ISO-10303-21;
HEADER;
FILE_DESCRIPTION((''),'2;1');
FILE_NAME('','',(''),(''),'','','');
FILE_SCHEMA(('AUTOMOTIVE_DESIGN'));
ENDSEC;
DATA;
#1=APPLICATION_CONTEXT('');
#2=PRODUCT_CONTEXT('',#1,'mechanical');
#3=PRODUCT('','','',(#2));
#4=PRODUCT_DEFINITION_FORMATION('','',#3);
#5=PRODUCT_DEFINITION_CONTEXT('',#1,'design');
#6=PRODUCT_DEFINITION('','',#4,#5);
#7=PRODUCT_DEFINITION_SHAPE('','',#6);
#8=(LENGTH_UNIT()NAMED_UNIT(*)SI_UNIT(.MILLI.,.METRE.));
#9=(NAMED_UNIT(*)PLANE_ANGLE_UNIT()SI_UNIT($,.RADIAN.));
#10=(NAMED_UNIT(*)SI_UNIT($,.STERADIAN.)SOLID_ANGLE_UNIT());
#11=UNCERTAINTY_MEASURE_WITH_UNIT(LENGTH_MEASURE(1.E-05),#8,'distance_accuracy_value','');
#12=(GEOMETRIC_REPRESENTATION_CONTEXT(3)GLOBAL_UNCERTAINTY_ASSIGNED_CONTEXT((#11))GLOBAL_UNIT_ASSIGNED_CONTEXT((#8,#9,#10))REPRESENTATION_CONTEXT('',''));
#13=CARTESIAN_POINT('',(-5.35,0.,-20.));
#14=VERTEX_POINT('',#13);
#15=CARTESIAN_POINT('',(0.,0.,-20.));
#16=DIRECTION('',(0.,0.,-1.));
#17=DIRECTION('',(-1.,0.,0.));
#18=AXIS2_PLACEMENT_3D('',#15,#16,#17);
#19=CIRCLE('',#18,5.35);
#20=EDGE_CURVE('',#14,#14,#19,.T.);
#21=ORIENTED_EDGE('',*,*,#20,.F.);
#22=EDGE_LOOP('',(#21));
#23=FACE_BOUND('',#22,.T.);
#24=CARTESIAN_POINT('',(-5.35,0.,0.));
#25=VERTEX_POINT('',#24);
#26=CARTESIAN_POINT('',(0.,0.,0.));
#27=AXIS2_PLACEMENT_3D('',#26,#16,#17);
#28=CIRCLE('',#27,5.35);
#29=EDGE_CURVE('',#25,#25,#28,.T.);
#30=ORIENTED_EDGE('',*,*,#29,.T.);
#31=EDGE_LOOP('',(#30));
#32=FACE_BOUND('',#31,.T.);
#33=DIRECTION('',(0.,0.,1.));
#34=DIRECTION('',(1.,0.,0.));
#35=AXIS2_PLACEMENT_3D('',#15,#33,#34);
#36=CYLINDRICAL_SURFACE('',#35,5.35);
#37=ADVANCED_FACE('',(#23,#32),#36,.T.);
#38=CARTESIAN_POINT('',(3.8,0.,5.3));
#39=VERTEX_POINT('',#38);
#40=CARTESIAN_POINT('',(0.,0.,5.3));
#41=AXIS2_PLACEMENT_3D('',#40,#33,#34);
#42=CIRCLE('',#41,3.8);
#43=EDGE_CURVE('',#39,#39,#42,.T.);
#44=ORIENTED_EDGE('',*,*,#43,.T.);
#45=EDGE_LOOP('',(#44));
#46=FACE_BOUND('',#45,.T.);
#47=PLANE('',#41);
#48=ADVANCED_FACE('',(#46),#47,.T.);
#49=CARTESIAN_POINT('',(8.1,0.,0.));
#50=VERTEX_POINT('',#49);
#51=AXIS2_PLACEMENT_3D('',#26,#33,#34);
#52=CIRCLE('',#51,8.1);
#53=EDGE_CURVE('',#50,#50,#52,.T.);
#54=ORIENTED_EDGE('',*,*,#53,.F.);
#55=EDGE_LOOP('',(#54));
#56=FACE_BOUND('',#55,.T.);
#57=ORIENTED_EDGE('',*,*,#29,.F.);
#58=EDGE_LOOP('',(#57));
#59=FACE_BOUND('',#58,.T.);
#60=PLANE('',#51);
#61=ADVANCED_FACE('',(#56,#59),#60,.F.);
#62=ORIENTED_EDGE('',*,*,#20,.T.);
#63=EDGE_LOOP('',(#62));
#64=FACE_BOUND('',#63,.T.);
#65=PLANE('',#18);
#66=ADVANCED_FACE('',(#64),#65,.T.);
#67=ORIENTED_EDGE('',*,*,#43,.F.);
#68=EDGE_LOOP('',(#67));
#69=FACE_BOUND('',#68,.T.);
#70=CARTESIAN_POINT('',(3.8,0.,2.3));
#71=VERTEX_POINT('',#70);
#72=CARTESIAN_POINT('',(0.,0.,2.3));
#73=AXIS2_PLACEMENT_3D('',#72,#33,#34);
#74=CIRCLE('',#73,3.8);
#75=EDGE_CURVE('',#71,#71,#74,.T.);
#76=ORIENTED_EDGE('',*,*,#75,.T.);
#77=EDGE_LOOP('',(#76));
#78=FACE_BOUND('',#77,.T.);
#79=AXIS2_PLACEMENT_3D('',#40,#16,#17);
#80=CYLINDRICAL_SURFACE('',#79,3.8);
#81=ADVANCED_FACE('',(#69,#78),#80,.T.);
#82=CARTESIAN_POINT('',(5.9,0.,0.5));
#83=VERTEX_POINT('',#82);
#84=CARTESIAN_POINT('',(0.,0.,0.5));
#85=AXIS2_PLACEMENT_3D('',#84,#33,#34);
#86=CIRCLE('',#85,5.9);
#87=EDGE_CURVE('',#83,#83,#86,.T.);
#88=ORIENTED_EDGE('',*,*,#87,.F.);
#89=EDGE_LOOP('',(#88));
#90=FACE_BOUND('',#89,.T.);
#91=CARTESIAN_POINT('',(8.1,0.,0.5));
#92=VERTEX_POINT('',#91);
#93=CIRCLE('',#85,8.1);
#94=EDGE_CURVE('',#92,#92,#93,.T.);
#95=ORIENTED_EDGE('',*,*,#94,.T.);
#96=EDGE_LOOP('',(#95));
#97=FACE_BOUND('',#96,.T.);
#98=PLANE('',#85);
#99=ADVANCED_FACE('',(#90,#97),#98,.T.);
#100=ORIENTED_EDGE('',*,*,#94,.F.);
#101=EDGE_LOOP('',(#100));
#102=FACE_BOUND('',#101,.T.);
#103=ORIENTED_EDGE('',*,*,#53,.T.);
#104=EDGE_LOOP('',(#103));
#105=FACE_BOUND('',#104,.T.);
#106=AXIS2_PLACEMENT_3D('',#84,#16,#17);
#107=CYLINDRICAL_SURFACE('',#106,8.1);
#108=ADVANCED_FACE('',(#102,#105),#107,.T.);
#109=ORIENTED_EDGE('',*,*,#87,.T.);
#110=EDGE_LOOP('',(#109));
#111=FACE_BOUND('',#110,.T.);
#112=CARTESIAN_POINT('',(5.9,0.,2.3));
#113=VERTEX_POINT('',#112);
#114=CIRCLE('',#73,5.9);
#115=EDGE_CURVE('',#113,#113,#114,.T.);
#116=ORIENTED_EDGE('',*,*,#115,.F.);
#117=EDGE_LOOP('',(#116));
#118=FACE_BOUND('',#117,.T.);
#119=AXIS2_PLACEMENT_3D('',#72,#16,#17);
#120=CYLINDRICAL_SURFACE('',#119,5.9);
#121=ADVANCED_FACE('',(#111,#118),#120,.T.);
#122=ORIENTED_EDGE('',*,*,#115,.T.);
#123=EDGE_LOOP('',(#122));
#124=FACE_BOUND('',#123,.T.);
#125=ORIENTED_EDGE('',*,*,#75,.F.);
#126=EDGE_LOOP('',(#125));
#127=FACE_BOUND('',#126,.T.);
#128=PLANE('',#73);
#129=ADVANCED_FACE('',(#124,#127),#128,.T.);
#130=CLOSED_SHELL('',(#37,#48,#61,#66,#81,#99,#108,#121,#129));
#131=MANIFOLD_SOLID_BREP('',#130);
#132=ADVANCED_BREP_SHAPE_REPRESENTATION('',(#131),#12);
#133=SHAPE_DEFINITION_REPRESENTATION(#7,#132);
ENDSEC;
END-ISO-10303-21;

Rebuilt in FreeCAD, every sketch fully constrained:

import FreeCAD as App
import Part
import Sketcher

V = App.Vector
Q = App.Units.Quantity

doc = App.newDocument("Part")
body = doc.addObject("PartDesign::Body", "Body")

# Sketch on XY plane
sketch1 = body.newObject("Sketcher::SketchObject", "Sketch")
sketch1.AttachmentSupport = (doc.getObject("XY_Plane"), [""])
sketch1.MapMode = "FlatFace"
sketch1.addGeometry(Part.Circle(V(0, 0, 0), V(0, 0, 1), 8), False)
sketch1.addConstraint([
    Sketcher.Constraint("Coincident", 0, 3, -1, 1),
    Sketcher.Constraint("Diameter", 0, Q("16.2 mm")),
])
pad1 = body.newObject("PartDesign::Pad", "Pad")
pad1.Profile = sketch1
pad1.Length = 0.5

# Sketch on XY plane
sketch2 = body.newObject("Sketcher::SketchObject", "Sketch001")
sketch2.AttachmentSupport = (doc.getObject("XY_Plane"), [""])
sketch2.MapMode = "FlatFace"
sketch2.AttachmentOffset = App.Placement(V(0, 0, 0.5), App.Rotation())
sketch2.addGeometry(Part.Circle(V(0, 0, 0), V(0, 0, 1), 6), False)
sketch2.addConstraint([
    Sketcher.Constraint("Coincident", 0, 3, -1, 1),
    Sketcher.Constraint("Diameter", 0, Q("11.8 mm")),
])
pad2 = body.newObject("PartDesign::Pad", "Pad001")
pad2.Profile = sketch2
pad2.Length = 1.8

# Sketch on XY plane
sketch3 = body.newObject("Sketcher::SketchObject", "Sketch002")
sketch3.AttachmentSupport = (doc.getObject("XY_Plane"), [""])
sketch3.MapMode = "FlatFace"
sketch3.AttachmentOffset = App.Placement(V(0, 0, 2.3), App.Rotation())
sketch3.addGeometry(Part.Circle(V(0, 0, 0), V(0, 0, 1), 3.8), False)
sketch3.addConstraint([
    Sketcher.Constraint("Coincident", 0, 3, -1, 1),
    Sketcher.Constraint("Diameter", 0, Q("7.6 mm")),
])
pad3 = body.newObject("PartDesign::Pad", "Pad002")
pad3.Profile = sketch3
pad3.Length = 3

# Sketch on XY plane
sketch4 = body.newObject("Sketcher::SketchObject", "Sketch003")
sketch4.AttachmentSupport = (doc.getObject("XY_Plane"), [""])
sketch4.MapMode = "FlatFace"
sketch4.addGeometry(Part.Circle(V(0, 0, 0), V(0, 0, 1), 5), False)
sketch4.addConstraint([
    Sketcher.Constraint("Coincident", 0, 3, -1, 1),
    Sketcher.Constraint("Diameter", 0, Q("10.7 mm")),
])
pad4 = body.newObject("PartDesign::Pad", "Pad003")
pad4.Profile = sketch4
pad4.Length = 20
pad4.Reversed = True

doc.recompute()
